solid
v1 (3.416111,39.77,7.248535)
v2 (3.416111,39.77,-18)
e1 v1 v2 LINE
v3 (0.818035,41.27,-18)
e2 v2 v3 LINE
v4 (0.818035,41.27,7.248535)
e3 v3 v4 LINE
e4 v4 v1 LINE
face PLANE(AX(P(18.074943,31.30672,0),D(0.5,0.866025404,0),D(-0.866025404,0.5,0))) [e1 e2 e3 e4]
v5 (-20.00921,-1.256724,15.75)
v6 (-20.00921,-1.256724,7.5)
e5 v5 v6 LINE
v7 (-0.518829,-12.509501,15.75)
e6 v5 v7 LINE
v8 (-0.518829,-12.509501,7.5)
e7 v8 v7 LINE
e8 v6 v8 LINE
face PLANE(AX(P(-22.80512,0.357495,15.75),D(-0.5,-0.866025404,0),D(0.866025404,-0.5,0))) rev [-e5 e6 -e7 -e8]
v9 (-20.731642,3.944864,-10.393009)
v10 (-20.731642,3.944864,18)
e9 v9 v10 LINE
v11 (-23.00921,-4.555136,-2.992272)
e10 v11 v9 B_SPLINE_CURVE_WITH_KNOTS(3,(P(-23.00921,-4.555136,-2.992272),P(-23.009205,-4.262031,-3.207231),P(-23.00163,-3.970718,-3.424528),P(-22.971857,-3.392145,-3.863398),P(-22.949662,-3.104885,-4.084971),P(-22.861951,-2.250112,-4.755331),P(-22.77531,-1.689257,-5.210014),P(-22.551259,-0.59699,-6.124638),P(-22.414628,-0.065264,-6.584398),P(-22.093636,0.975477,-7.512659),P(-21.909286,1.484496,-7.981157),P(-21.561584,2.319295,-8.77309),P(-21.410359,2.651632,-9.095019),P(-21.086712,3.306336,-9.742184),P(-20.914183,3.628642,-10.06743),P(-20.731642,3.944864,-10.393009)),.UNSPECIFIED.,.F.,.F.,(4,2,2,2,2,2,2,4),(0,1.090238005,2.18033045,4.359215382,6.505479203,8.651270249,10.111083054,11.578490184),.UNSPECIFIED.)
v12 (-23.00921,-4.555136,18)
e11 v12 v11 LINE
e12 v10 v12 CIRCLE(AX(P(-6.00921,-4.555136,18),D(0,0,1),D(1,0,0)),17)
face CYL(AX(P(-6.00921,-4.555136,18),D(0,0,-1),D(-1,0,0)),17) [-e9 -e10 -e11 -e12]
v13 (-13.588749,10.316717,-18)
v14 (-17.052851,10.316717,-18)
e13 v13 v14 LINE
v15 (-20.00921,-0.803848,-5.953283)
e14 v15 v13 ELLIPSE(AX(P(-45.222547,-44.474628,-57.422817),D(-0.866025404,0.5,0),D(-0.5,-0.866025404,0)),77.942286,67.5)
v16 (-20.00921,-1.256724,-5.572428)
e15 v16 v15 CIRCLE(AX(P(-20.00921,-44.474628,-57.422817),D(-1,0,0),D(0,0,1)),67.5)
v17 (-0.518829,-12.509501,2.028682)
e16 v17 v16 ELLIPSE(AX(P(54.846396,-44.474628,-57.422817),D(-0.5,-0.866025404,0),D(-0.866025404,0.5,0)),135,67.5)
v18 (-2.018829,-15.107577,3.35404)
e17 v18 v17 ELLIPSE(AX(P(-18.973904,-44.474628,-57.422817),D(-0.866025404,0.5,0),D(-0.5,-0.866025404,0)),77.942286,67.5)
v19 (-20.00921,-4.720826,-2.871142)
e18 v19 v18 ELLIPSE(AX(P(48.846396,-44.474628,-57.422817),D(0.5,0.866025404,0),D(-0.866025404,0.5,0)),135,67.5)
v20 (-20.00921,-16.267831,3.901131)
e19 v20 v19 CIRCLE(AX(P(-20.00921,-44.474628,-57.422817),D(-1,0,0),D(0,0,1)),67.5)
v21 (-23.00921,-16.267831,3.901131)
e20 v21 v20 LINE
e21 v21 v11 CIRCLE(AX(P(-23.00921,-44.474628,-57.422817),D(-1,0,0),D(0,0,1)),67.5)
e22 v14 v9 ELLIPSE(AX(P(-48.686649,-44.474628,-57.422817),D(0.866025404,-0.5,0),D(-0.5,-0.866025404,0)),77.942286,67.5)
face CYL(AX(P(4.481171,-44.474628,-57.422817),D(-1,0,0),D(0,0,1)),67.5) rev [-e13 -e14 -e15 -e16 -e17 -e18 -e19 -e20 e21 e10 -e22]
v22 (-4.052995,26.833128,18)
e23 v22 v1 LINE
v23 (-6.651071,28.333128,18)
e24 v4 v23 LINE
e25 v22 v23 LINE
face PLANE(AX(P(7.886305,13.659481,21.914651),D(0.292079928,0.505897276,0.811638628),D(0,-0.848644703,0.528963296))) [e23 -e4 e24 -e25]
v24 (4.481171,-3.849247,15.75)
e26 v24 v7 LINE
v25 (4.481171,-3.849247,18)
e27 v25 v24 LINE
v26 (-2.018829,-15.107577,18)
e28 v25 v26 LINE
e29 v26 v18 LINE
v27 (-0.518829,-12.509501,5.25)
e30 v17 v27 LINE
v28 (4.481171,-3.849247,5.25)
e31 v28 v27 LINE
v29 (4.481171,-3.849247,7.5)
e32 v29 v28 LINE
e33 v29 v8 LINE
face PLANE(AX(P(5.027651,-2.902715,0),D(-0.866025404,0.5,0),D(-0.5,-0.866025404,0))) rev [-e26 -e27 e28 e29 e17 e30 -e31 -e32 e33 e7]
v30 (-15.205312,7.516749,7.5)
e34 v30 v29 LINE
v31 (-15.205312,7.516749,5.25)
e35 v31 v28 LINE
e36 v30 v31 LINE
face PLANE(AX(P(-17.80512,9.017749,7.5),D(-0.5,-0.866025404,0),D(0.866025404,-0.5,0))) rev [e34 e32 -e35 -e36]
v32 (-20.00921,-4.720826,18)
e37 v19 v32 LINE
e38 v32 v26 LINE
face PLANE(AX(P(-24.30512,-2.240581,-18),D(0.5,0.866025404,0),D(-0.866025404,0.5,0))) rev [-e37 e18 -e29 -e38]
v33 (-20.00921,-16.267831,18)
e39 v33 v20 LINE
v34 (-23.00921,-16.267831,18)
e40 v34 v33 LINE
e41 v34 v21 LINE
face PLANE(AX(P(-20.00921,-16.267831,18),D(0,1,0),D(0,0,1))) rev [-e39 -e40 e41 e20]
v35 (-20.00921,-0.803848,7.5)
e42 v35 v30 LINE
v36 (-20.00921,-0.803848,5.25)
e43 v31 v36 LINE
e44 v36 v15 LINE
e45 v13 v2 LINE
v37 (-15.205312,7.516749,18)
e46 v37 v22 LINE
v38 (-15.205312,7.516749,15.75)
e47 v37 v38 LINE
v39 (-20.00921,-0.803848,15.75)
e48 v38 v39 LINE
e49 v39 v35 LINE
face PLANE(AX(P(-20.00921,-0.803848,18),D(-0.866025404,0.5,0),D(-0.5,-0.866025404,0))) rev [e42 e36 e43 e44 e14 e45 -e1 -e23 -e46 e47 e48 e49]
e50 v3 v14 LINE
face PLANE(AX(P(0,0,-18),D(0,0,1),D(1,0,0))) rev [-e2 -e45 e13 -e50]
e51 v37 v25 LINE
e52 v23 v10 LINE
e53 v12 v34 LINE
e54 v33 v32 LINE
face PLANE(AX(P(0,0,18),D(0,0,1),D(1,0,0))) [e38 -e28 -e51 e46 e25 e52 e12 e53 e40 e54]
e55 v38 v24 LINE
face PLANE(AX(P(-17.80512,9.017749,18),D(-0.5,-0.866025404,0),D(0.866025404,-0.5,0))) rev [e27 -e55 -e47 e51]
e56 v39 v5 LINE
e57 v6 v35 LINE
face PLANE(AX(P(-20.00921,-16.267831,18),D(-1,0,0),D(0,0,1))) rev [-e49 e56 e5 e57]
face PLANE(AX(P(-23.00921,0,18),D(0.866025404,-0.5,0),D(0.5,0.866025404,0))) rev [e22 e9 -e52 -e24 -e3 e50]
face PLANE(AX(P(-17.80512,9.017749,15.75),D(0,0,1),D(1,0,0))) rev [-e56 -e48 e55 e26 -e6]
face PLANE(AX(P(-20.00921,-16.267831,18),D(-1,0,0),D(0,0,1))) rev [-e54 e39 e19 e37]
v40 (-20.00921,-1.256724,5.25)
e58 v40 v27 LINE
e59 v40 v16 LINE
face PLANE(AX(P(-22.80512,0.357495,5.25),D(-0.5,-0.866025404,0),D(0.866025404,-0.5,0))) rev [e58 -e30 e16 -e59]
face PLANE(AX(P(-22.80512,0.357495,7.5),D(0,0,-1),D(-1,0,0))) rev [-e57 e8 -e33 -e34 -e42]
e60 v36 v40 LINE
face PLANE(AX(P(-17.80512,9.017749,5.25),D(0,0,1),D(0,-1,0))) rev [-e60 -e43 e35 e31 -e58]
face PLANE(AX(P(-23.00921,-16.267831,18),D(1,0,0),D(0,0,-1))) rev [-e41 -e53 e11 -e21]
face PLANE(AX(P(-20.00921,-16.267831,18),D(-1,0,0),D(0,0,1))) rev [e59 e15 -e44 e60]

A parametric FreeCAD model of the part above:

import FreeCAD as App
import Part
import Sketcher
Q = App.Units.Quantity


def edges_at(feature, points):
    """Names of the edges that pass closest to the given points."""
    edges = feature.Shape.Edges
    near = lambda p: min(range(len(edges)), key=lambda i: edges[i].distToShape(Part.Vertex(*p))[0])
    return sorted({f"Edge{near(p) + 1}" for p in points})


def add_polygon(sketch, points):
    """Adds a closed chain of lines whose ends are joined by coincident constraints."""
    first, n = sketch.GeometryCount, len(points)
    for a, b in zip(points, points[1:] + points[:1]):
        sketch.addGeometry(Part.LineSegment(App.Vector(*a, 0), App.Vector(*b, 0)), False)
    for i in range(n):
        sketch.addConstraint(Sketcher.Constraint("Coincident", first + i, 2, first + (i + 1) % n, 1))

doc = App.newDocument("Part")
body = doc.addObject("PartDesign::Body", "Body")

# Sketch on XY plane
sketch1 = body.newObject("Sketcher::SketchObject", "Sketch")
sketch1.AttachmentSupport = (doc.getObject("XY_Plane"), [""])
sketch1.MapMode = "FlatFace"
add_polygon(sketch1, [(-23, 0), (-23, -16.3), (-20, -16.3), (-20, -0.8), (7.5, 46.8), (5.7, 49.8)])  # lines 0-5
sketch1.addConstraint([
    Sketcher.Constraint("Vertical", 0),
    Sketcher.Constraint("Horizontal", 1),
    Sketcher.Constraint("Vertical", 2),
    Sketcher.Constraint("PointOnObject", 5, 2, -1),
    Sketcher.Constraint("Parallel", 3, 5),
    Sketcher.Constraint("DistanceX", 1, 1, 1, 2, 3.0),
    Sketcher.Constraint("Angle", 3, Q("60 deg")),
    Sketcher.Constraint("Angle", 4, Q("120 deg")),
    Sketcher.Constraint("DistanceY", 3, 2, 4, 2, 3.0),
    Sketcher.Constraint("Distance", 5, 57.464102),
    Sketcher.Constraint("DistanceY", 0, 2, 0, 1, 16.267831),
    Sketcher.Constraint("DistanceX", 0, 2, -1, 1, 23.00921),
])
pad1 = body.newObject("PartDesign::Pad", "Pad")
pad1.Profile = sketch1
pad1.Length = 36
pad1.Midplane = True
doc.recompute()

fillet = body.newObject("PartDesign::Fillet", "Fillet")
fillet.Base = (pad1, edges_at(pad1, [(-23.009, 0, 0)]))
fillet.Radius = 17
body2 = doc.addObject("PartDesign::Body", "Body001")

# Sketch on an angled plane
sketch2 = body2.newObject("Sketcher::SketchObject", "Sketch001")
sketch2.Placement = App.Placement(App.Vector(-7.96273, 4.597285, 0), App.Rotation(App.Vector(0, 0, -1), App.Vector(0.5, 0.866025404, 0), App.Vector(0.866025404, -0.5, 0), "ZXY"))
add_polygon(sketch2, [(-18, -11.1), (-18, -14.1), (18, -14.1), (18, -11.1)])  # lines 0-3
sketch2.addConstraint([
    Sketcher.Constraint("Vertical", 0),
    Sketcher.Constraint("Horizontal", 1),
    Sketcher.Constraint("Vertical", 2),
    Sketcher.Constraint("Horizontal", 3),
    Sketcher.Constraint("DistanceX", 1, 1, 1, 2, 36.0),
    Sketcher.Constraint("DistanceY", 0, 2, 0, 1, 3.0),
    Sketcher.Constraint("DistanceX", 0, 2, -1, 1, 18.0),
    Sketcher.Constraint("DistanceY", 0, 2, -1, 1, 14.09296),
])
pad2 = body2.newObject("PartDesign::Pad", "Pad001")
pad2.Profile = sketch2
pad2.Length = 15

# Sketch on an angled plane
sketch3 = body2.newObject("Sketcher::SketchObject", "Sketch002")
sketch3.Placement = App.Placement(App.Vector(-5.54648, -9.606785, 0), App.Rotation(App.Vector(0.866025404, -0.5, 0), App.Vector(0, 0, -1), App.Vector(0.5, 0.866025404, 0), "ZXY"))
add_polygon(sketch3, [(-9.2, -15.8), (-9.2, -18), (5.8, -18), (5.8, -15.8)])  # lines 0-3
sketch3.addConstraint([
    Sketcher.Constraint("Vertical", 0),
    Sketcher.Constraint("Horizontal", 1),
    Sketcher.Constraint("Vertical", 2),
    Sketcher.Constraint("Horizontal", 3),
    Sketcher.Constraint("DistanceX", 1, 1, 1, 2, 15.0),
    Sketcher.Constraint("DistanceY", 0, 2, -1, 1, 18.0),
    Sketcher.Constraint("DistanceY", 0, 2, 0, 1, 2.25),
    Sketcher.Constraint("DistanceX", 0, 2, -1, 1, 9.194569),
])
pad3 = body2.newObject("PartDesign::Pad", "Pad002")
pad3.Profile = sketch3
pad3.Length = 10

# Sketch on an angled plane
sketch4 = body2.newObject("Sketcher::SketchObject", "Sketch003")
sketch4.Placement = App.Placement(App.Vector(-5.54648, -9.606785, 0), App.Rotation(App.Vector(0.866025404, -0.5, 0), App.Vector(0, 0, -1), App.Vector(0.5, 0.866025404, 0), "ZXY"))
add_polygon(sketch4, [(-9.2, -5.3), (-9.2, -7.5), (5.8, -7.5), (5.8, -5.3)])  # lines 0-3
sketch4.addConstraint([
    Sketcher.Constraint("Vertical", 0),
    Sketcher.Constraint("Horizontal", 1),
    Sketcher.Constraint("Vertical", 2),
    Sketcher.Constraint("Horizontal", 3),
    Sketcher.Constraint("DistanceX", 1, 1, 1, 2, 15.0),
    Sketcher.Constraint("DistanceY", 0, 2, 0, 1, 2.25),
    Sketcher.Constraint("DistanceY", 0, 2, -1, 1, 7.5),
    Sketcher.Constraint("DistanceX", 0, 2, -1, 1, 9.194569),
])
pad4 = body2.newObject("PartDesign::Pad", "Pad003")
pad4.Profile = sketch4
pad4.Length = 10
body.AllowCompound = True
doc.recompute()

boolean = body.newObject("PartDesign::Boolean", "Boolean")
boolean.Type = "Fuse"
boolean.addObjects([body2])

# Sketch on an angled plane
sketch5 = body.newObject("Sketcher::SketchObject", "Sketch004")
sketch5.Placement = App.Placement(App.Vector(-7.96273, 4.597285, 0), App.Rotation(App.Vector(0, 0, 1), App.Vector(0.5, 0.866025404, 0), App.Vector(-0.866025404, 0.5, 0), "ZXY"))
add_polygon(sketch5, [(18, -14.1), (18, -1.1), (15.8, -1.1), (15.8, -11.1), (7.5, -11.1), (7.5, -1.1), (5.2, -1.1), (5.2, -11.1), (-18, -11.1), (-18, -14.1)])  # lines 0-9
sketch5.addConstraint([
    Sketcher.Constraint("Vertical", 0),
    Sketcher.Constraint("Horizontal", 1),
    Sketcher.Constraint("Vertical", 2),
    Sketcher.Constraint("Horizontal", 3),
    Sketcher.Constraint("Vertical", 4),
    Sketcher.Constraint("Horizontal", 5),
    Sketcher.Constraint("Vertical", 6),
    Sketcher.Constraint("Horizontal", 7),
    Sketcher.Constraint("Vertical", 8),
    Sketcher.Constraint("Horizontal", 9),
    Sketcher.Constraint("Horizontal", 1, 2, 4, 2),
    Sketcher.Constraint("Horizontal", 3, 2, 6, 2),
    Sketcher.Constraint("Equal", 1, 5),
    Sketcher.Constraint("DistanceX", 9, 1, 9, 2, 36.0),
    Sketcher.Constraint("DistanceY", 0, 1, 0, 2, 13.0),
    Sketcher.Constraint("DistanceY", 2, 2, 2, 1, 10.0),
    Sketcher.Constraint("DistanceX", -1, 1, 0, 2, 18.0),
    Sketcher.Constraint("DistanceX", 1, 2, 1, 1, 2.25),
    Sketcher.Constraint("DistanceX", 3, 2, 3, 1, 8.25),
    Sketcher.Constraint("DistanceY", 0, 2, -1, 1, 1.09296),
])
pad5 = body.newObject("PartDesign::Pad", "Pad004")
pad5.Profile = sketch5
pad5.Type = "UpToFirst"

# Sketch on XZ plane
sketch6 = body.newObject("Sketcher::SketchObject", "Sketch005")
sketch6.AttachmentSupport = (doc.getObject("XZ_Plane"), [""])
sketch6.MapMode = "FlatFace"
sketch6.AttachmentOffset = App.Placement(App.Vector(0, 0, -41.27), App.Rotation())
add_polygon(sketch6, [(-7, -19), (-7, 19), (8, 19), (8, -19)])  # lines 0-3
sketch6.addConstraint([
    Sketcher.Constraint("Vertical", 0),
    Sketcher.Constraint("Horizontal", 1),
    Sketcher.Constraint("Vertical", 2),
    Sketcher.Constraint("Horizontal", 3),
    Sketcher.Constraint("DistanceX", 1, 1, 1, 2, 14.804118),
    Sketcher.Constraint("DistanceY", 0, 1, 0, 2, 37.418245),
    Sketcher.Constraint("DistanceX", 0, 2, -1, 1, 6.660608),
    Sketcher.Constraint("DistanceY", 2, 2, -1, 1, 18.85194),
])
pocket1 = body.newObject("PartDesign::Pocket", "Pocket")
pocket1.Profile = sketch6
pocket1.Type = "ThroughAll"

# Sketch on an angled plane
sketch7 = body.newObject("Sketcher::SketchObject", "Sketch006")
sketch7.Placement = App.Placement(App.Vector(-17.256908, 9.96328, 0), App.Rotation(App.Vector(0, 0, 1), App.Vector(0.5, 0.866025404, 0), App.Vector(-0.866025404, 0.5, 0), "ZXY"))
add_polygon(sketch7, [(18, 36), (9, 36), (18, 23)])  # lines 0-2
sketch7.addConstraint([
    Sketcher.Constraint("Horizontal", 0),
    Sketcher.Constraint("Vertical", 2),
    Sketcher.Constraint("DistanceX", -1, 1, 1, 2, 18.0),
    Sketcher.Constraint("DistanceX", 0, 2, 0, 1, 9.211371),
    Sketcher.Constraint("DistanceY", -1, 1, 1, 2, 23.351499),
    Sketcher.Constraint("Distance", 1, 15.768579),
])
pocket2 = body.newObject("PartDesign::Pocket", "Pocket001")
pocket2.Profile = sketch7
pocket2.Type = "ThroughAll"

# Sketch on an angled plane
sketch8 = body.newObject("Sketcher::SketchObject", "Sketch007")
sketch8.Placement = App.Placement(App.Vector(18.074943, 31.30672, 0), App.Rotation(App.Vector(-0.866025404, 0.5, 0), App.Vector(0, 0, -1), App.Vector(-0.5, -0.866025404, 0), "ZXY"))
add_polygon(sketch8, [(14, 19), (14, -19), (21, -19), (21, 19)])  # lines 0-3
sketch8.addConstraint([
    Sketcher.Constraint("Vertical", 0),
    Sketcher.Constraint("Horizontal", 1),
    Sketcher.Constraint("Vertical", 2),
    Sketcher.Constraint("Horizontal", 3),
    Sketcher.Constraint("DistanceX", 1, 1, 1, 2, 6.782058),
    Sketcher.Constraint("DistanceY", 0, 2, 0, 1, 38.05066),
    Sketcher.Constraint("DistanceX", -1, 1, 0, 2, 14.481216),
    Sketcher.Constraint("DistanceY", 0, 2, -1, 1, 18.978972),
])
pocket3 = body.newObject("PartDesign::Pocket", "Pocket002")
pocket3.Profile = sketch8
pocket3.Type = "ThroughAll"

# Sketch on an angled plane
sketch9 = body.newObject("Sketcher::SketchObject", "Sketch008")
sketch9.Placement = App.Placement(App.Vector(7.886305, 13.659481, 21.914651), App.Rotation(App.Vector(0.956393912, -0.154499562, -0.247872084), App.Vector(0, 0.848644703, -0.528963296), App.Vector(0.292079928, 0.505897276, 0.811638628), "ZXY"))
add_polygon(sketch9, [(-3, 29), (-9, 32), (-17, 15), (-11, 12)])  # lines 0-3
sketch9.addConstraint([
    Sketcher.Constraint("Perpendicular", 0, 1),
    Sketcher.Constraint("Perpendicular", 1, 2),
    Sketcher.Constraint("Perpendicular", 2, 3),
    Sketcher.Constraint("Distance", 0, 6.382151),
    Sketcher.Constraint("DistanceX", 0, 2, -1, 1, 8.700629),
    Sketcher.Constraint("DistanceY", -1, 1, 0, 2, 32.160721),
    Sketcher.Constraint("DistanceX", 3, 2, -1, 1, 2.92152),
    Sketcher.Constraint("DistanceY", 1, 2, 0, 2, 17.066128),
])
pocket4 = body.newObject("PartDesign::Pocket", "Pocket003")
pocket4.Profile = sketch9
pocket4.Type = "ThroughAll"
pocket4.Reversed = True

# Sketch on YZ plane
sketch10 = body.newObject("Sketcher::SketchObject", "Sketch009")
sketch10.AttachmentSupport = (doc.getObject("YZ_Plane"), [""])
sketch10.MapMode = "FlatFace"
sketch10.AttachmentOffset = App.Placement(App.Vector(0, 0, -23.00921), App.Rotation())
sketch10.addGeometry(Part.Circle(App.Vector(-44, -57, 0), App.Vector(0, 0, 1), 68), False)
sketch10.addConstraint([
    Sketcher.Constraint("Diameter", 0, 135.0),
    Sketcher.Constraint("DistanceX", 0, 3, -1, 1, 44.474628),
    Sketcher.Constraint("DistanceY", 0, 3, -1, 1, 57.422817),
])
pocket5 = body.newObject("PartDesign::Pocket", "Pocket004")
pocket5.Profile = sketch10
pocket5.Type = "ThroughAll"
pocket5.Reversed = True

doc.recompute()
